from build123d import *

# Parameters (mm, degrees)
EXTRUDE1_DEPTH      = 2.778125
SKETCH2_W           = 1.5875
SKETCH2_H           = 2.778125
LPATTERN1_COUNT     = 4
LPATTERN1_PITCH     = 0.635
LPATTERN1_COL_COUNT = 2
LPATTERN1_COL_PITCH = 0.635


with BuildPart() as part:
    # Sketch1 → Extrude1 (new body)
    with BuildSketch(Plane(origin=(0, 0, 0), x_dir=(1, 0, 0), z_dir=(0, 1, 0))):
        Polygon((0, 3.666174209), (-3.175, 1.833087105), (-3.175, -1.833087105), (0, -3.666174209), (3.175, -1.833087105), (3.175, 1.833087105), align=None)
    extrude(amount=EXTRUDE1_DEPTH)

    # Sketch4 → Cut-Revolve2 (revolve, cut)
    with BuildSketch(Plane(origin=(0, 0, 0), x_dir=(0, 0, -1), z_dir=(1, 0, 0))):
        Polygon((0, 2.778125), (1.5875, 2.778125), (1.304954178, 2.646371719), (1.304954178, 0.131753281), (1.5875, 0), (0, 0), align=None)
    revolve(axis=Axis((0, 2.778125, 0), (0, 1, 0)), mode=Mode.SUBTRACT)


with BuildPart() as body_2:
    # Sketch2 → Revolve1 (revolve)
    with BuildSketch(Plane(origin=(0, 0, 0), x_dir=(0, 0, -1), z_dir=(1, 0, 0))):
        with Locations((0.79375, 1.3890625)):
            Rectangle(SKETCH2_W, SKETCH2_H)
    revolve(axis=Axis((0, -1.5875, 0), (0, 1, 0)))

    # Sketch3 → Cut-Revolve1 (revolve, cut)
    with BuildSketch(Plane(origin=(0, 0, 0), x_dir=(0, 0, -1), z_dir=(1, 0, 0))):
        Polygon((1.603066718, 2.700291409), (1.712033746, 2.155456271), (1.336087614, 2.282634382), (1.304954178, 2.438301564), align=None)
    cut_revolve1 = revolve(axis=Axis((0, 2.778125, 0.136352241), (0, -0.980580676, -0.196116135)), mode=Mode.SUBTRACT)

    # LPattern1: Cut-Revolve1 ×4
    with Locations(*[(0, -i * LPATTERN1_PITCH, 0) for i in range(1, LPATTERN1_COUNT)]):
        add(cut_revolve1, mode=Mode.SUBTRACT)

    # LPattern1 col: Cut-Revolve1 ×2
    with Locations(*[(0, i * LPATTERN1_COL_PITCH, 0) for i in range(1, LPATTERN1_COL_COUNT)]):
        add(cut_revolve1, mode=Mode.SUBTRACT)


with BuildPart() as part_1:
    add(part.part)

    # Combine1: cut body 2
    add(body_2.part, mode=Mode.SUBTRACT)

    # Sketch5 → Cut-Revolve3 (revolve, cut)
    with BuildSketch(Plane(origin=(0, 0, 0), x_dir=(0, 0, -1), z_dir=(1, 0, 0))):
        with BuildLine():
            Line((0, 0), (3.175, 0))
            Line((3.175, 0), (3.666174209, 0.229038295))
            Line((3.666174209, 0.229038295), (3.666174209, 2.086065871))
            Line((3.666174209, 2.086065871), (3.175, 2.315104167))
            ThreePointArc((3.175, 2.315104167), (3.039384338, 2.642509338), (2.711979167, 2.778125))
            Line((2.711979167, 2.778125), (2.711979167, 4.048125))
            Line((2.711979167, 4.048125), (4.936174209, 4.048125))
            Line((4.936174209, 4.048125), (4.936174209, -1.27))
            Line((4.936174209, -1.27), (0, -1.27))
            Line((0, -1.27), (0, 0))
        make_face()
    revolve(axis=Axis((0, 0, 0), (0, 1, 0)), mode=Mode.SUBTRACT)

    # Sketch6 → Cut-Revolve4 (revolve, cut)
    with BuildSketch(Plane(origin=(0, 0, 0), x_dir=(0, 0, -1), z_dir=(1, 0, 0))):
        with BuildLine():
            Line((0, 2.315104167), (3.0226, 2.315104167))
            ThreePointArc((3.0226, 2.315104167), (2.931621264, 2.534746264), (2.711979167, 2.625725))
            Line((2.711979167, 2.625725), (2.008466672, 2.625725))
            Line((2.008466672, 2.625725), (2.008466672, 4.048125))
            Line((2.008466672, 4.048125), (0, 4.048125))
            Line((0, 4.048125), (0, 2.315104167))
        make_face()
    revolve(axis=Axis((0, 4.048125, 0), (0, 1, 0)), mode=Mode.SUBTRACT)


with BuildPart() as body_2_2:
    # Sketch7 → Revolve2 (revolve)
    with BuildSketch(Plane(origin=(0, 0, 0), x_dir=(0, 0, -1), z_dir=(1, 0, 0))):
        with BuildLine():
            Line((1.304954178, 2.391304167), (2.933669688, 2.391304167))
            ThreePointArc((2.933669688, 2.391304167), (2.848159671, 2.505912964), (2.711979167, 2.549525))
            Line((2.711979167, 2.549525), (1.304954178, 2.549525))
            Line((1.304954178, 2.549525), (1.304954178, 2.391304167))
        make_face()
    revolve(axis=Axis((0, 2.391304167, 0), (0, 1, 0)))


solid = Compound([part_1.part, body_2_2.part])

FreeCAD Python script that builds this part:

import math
import FreeCAD as App
import Part
import Sketcher
from FreeCAD import Vector
Q = App.Units.Quantity


def add_polygon(sketch, points):
    """Adds a closed chain of lines whose ends are joined by coincident constraints."""
    first, n = sketch.GeometryCount, len(points)
    for a, b in zip(points, points[1:] + points[:1]):
        sketch.addGeometry(Part.LineSegment(App.Vector(*a, 0), App.Vector(*b, 0)), False)
    for i in range(n):
        sketch.addConstraint(Sketcher.Constraint("Coincident", first + i, 2, first + (i + 1) % n, 1))

doc = App.newDocument("Part")
body = doc.addObject("PartDesign::Body", "Body")

sketch1 = doc.addObject("Sketcher::SketchObject", "Sketch")
body.addObject(sketch1)
sketch1.AttachmentSupport = (doc.XZ_Plane, [""])
sketch1.MapMode = "FlatFace"
add_polygon(sketch1, [(0, -3.7), (-3.2, -1.8), (-3.2, 1.8), (0, 3.7), (3.2, 1.8), (3.2, -1.8)])
sketch1.addConstraint([
    Sketcher.Constraint("Vertical", 1),
    Sketcher.Constraint("Vertical", 4),
    Sketcher.Constraint("Symmetric", 0, 2, 3, 2, -1, 1),
    Sketcher.Constraint("Symmetric", 2, 2, 5, 2, -1, 1),
    Sketcher.Constraint("PointOnObject", 2, 2, -2),
    Sketcher.Constraint("Parallel", 2, 5),
    Sketcher.Constraint("Horizontal", 1, 2, 3, 2),
    Sketcher.Constraint("Angle", 0, Q("150 deg")),
    Sketcher.Constraint("DistanceX", 1, 2, 3, 2, Q("0.25 in")),
    Sketcher.Constraint("DistanceY", 1, 1, 1, 2, 3.666174),
])
pad1 = doc.addObject("PartDesign::Pad", "Pad")
body.addObject(pad1)
pad1.Profile = sketch1
pad1.Length = Q("0.109375 in")
pad1.Reversed = True

sketch2 = doc.addObject("Sketcher::SketchObject", "Sketch001")
body.addObject(sketch2)
sketch2.AttachmentSupport = (doc.YZ_Plane, [""])
sketch2.MapMode = "FlatFace"
add_polygon(sketch2, [(2.78, -1.59), (2.78, 0), (0, 0), (0, -1.59), (0.13, -1.3), (2.65, -1.3)])
sketch2.addConstraint([
    Sketcher.Constraint("Vertical", 0),
    Sketcher.Constraint("Horizontal", 1),
    Sketcher.Constraint("Vertical", 2),
    Sketcher.Constraint("Horizontal", 4),
    Sketcher.Constraint("Coincident", 1, 2, -1, 1),
    Sketcher.Constraint("Horizontal", 2, 2, 5, 2),
    Sketcher.Constraint("Equal", 3, 5),
    Sketcher.Constraint("Angle", 3, Q("65 deg")),
    Sketcher.Constraint("DistanceX", 1, 2, 1, 1, Q("0.109375 in")),
    Sketcher.Constraint("DistanceY", 0, 1, 0, 2, Q("0.0625 in")),
    Sketcher.Constraint("DistanceX", 4, 1, 4, 2, 2.514618),
])
groove = doc.addObject("PartDesign::Groove", "Groove")
body.addObject(groove)
groove.Profile = sketch2
groove.ReferenceAxis = (sketch2, ["H_Axis"])
groove.Angle = 360
body2 = doc.addObject("PartDesign::Body", "Body001")

sketch3 = doc.addObject("Sketcher::SketchObject", "Sketch002")
body2.addObject(sketch3)
sketch3.AttachmentSupport = (doc.getObject("YZ_Plane001"), [""])
sketch3.MapMode = "FlatFace"
add_polygon(sketch3, [(2.8, 0), (0, 0), (0, -1.6), (2.8, -1.6)])
sketch3.addConstraint([
    Sketcher.Constraint("Horizontal", 0),
    Sketcher.Constraint("Vertical", 1),
    Sketcher.Constraint("Horizontal", 2),
    Sketcher.Constraint("Vertical", 3),
    Sketcher.Constraint("Coincident", 0, 2, -1, 1),
    Sketcher.Constraint("DistanceX", 0, 2, 0, 1, Q("0.109375 in")),
    Sketcher.Constraint("DistanceY", 1, 2, 1, 1, Q("0.0625 in")),
])
revolution = doc.addObject("PartDesign::Revolution", "Revolution")
body2.addObject(revolution)
revolution.Profile = sketch3
revolution.ReferenceAxis = (sketch3, ["H_Axis"])
revolution.Angle = 360

sketch4 = doc.addObject("Sketcher::SketchObject", "Sketch003")
body2.addObject(sketch4)
sketch4.AttachmentSupport = (doc.getObject("YZ_Plane001"), [""])
sketch4.MapMode = "FlatFace"
add_polygon(sketch4, [(2.16, -1.71), (2.7, -1.6), (2.44, -1.3), (2.28, -1.34)])
sketch4.addGeometry(Part.LineSegment(Vector(2.37, 0.05, 0), Vector(1.82, -0.05, 0)), True)
sketch4.addConstraint([
    Sketcher.Constraint("Parallel", 0, 2),
    Sketcher.Constraint("Parallel", 2, 4),
    Sketcher.Constraint("Equal", 1, 3),
    Sketcher.Constraint("Equal", 0, 4),
    Sketcher.Constraint("Distance", 1, Q("0.015625 in")),
    Sketcher.Constraint("DistanceX", -1, 1, 1, 2, 2.438302),
    Sketcher.Constraint("Distance", 2, 0.15875),
    Sketcher.Constraint("DistanceX", -1, 1, 0, 2, 2.700291),
    Sketcher.Constraint("DistanceX", -1, 1, 4, 1, 2.368781),
    Sketcher.Constraint("DistanceY", 0, 2, 2, 2, 0.266979),
    Sketcher.Constraint("DistanceY", 2, 2, 4, 1, 1.390571),
    Sketcher.Constraint("DistanceY", 0, 2, -1, 1, 1.603067),
])
groove2 = doc.addObject("PartDesign::Groove", "Groove001")
body2.addObject(groove2)
groove2.Profile = sketch4
groove2.ReferenceAxis = (sketch4, ["Axis0"])
groove2.Angle = 360
doc.recompute()

linearpattern = doc.addObject("PartDesign::LinearPattern", "LinearPattern")
body2.addObject(linearpattern)
linearpattern.Originals = [groove2]
linearpattern.Direction = (doc.getObject("Y_Axis001"), [""])
linearpattern.Mode = "offset"
linearpattern.Offset = Q("0.025 in")
linearpattern.Occurrences = 4
linearpattern.Reversed = True
body2.Tip = linearpattern
doc.recompute()

linearpattern2 = doc.addObject("PartDesign::LinearPattern", "LinearPattern001")
body2.addObject(linearpattern2)
linearpattern2.Originals = [groove2]
linearpattern2.Direction = (doc.getObject("Y_Axis001"), [""])
linearpattern2.Mode = "offset"
linearpattern2.Offset = Q("0.025 in")
linearpattern2.Occurrences = 2
body2.Tip = linearpattern2
doc.recompute()

boolean = doc.addObject("PartDesign::Boolean", "Boolean")
body.addObject(boolean)
boolean.Type = "Cut"
boolean.addObjects([body2])

sketch5 = doc.addObject("Sketcher::SketchObject", "Sketch004")
body.addObject(sketch5)
sketch5.AttachmentSupport = (doc.YZ_Plane, [""])
sketch5.MapMode = "FlatFace"
sketch5.addGeometry([
    Part.LineSegment(Vector(0, -3.17, 0), Vector(0, 0, 0)),
    Part.LineSegment(Vector(0, 0, 0), Vector(-1.27, 0, 0)),
    Part.LineSegment(Vector(-1.27, 0, 0), Vector(-1.27, -4.94, 0)),
    Part.LineSegment(Vector(-1.27, -4.94, 0), Vector(4.05, -4.94, 0)),
    Part.LineSegment(Vector(4.05, -4.94, 0), Vector(4.05, -2.71, 0)),
    Part.LineSegment(Vector(4.05, -2.71, 0), Vector(2.78, -2.71, 0)),
    Part.ArcOfCircle(Part.Circle(Vector(2.32, -2.71, 0), Vector(0, 0, 1), 0.46), math.radians(-90), math.radians(0)),
    Part.LineSegment(Vector(2.32, -3.17, 0), Vector(2.09, -3.67, 0)),
    Part.LineSegment(Vector(2.09, -3.67, 0), Vector(0.23, -3.67, 0)),
    Part.LineSegment(Vector(0.23, -3.67, 0), Vector(0, -3.17, 0)),
], False)
sketch5.addConstraint([
    Sketcher.Constraint("Coincident", 0, 2, 1, 1),
    Sketcher.Constraint("Coincident", 1, 2, 2, 1),
    Sketcher.Constraint("Coincident", 2, 2, 3, 1),
    Sketcher.Constraint("Coincident", 3, 2, 4, 1),
    Sketcher.Constraint("Coincident", 4, 2, 5, 1),
    Sketcher.Constraint("Coincident", 5, 2, 6, 2),
    Sketcher.Constraint("Coincident", 6, 1, 7, 1),
    Sketcher.Constraint("Coincident", 7, 2, 8, 1),
    Sketcher.Constraint("Coincident", 8, 2, 9, 1),
    Sketcher.Constraint("Coincident", 9, 2, 0, 1),
    Sketcher.Constraint("Vertical", 0),
    Sketcher.Constraint("Horizontal", 1),
    Sketcher.Constraint("Vertical", 2),
    Sketcher.Constraint("Horizontal", 3),
    Sketcher.Constraint("Vertical", 4),
    Sketcher.Constraint("Horizontal", 5),
    Sketcher.Constraint("Horizontal", 8),
    Sketcher.Constraint("Coincident", 0, 2, -1, 1),
    Sketcher.Constraint("Horizontal", 6, 3, 4, 2),
    Sketcher.Constraint("Horizontal", 6, 1, 9, 2),
    Sketcher.Constraint("Equal", 1, 5),
    Sketcher.Constraint("Equal", 7, 9),
    Sketcher.Constraint("Angle", 7, Q("-115 deg")),
    Sketcher.Constraint("DistanceX", 1, 2, 1, 1, Q("0.05 in")),
    Sketcher.Constraint("DistanceY", 0, 1, 0, 2, Q("0.125 in")),
    Sketcher.Constraint("DistanceY", 3, 2, 7, 2, Q("0.05 in")),
    Sketcher.Constraint("DistanceX", -1, 1, 5, 2, Q("0.109375 in")),
    Sketcher.Constraint("Radius", 6, 0.463021),
    Sketcher.Constraint("Distance", 7, 0.541951),
    Sketcher.Constraint("DistanceX", 8, 2, 8, 1, 1.857028),
])
groove3 = doc.addObject("PartDesign::Groove", "Groove002")
body.addObject(groove3)
groove3.Profile = sketch5
groove3.ReferenceAxis = (sketch5, ["H_Axis"])
groove3.Angle = 360

sketch6 = doc.addObject("Sketcher::SketchObject", "Sketch005")
body.addObject(sketch6)
sketch6.AttachmentSupport = (doc.YZ_Plane, [""])
sketch6.MapMode = "FlatFace"
sketch6.addGeometry([
    Part.LineSegment(Vector(2.32, 0, 0), Vector(2.32, -3.02, 0)),
    Part.ArcOfCircle(Part.Circle(Vector(2.32, -2.71, 0), Vector(0, 0, 1), 0.31), math.radians(-90), math.radians(0)),
    Part.LineSegment(Vector(2.63, -2.71, 0), Vector(2.63, -2.01, 0)),
    Part.LineSegment(Vector(2.63, -2.01, 0), Vector(4.05, -2.01, 0)),
    Part.LineSegment(Vector(4.05, -2.01, 0), Vector(4.05, 0, 0)),
    Part.LineSegment(Vector(4.05, 0, 0), Vector(2.32, 0, 0)),
], False)
sketch6.addConstraint([
    Sketcher.Constraint("Coincident", 0, 2, 1, 1),
    Sketcher.Constraint("Tangent", 1, 2, 2, 1),
    Sketcher.Constraint("Coincident", 2, 2, 3, 1),
    Sketcher.Constraint("Coincident", 3, 2, 4, 1),
    Sketcher.Constraint("Coincident", 4, 2, 5, 1),
    Sketcher.Constraint("Coincident", 5, 2, 0, 1),
    Sketcher.Constraint("Vertical", 0),
    Sketcher.Constraint("Vertical", 2),
    Sketcher.Constraint("Horizontal", 3),
    Sketcher.Constraint("Vertical", 4),
    Sketcher.Constraint("Horizontal", 5),
    Sketcher.Constraint("PointOnObject", 4, 2, -1),
    Sketcher.Constraint("Vertical", 1, 3, 0, 2),
    Sketcher.Constraint("DistanceX", 3, 1, 3, 2, Q("0.056 in")),
    Sketcher.Constraint("DistanceY", 0, 2, 0, 1, Q("0.119 in")),
    Sketcher.Constraint("Radius", 1, 0.310621),
    Sketcher.Constraint("DistanceY", 2, 1, 2, 2, 0.703512),
    Sketcher.Constraint("DistanceX", -1, 1, 1, 3, 2.315104),
])
groove4 = doc.addObject("PartDesign::Groove", "Groove003")
body.addObject(groove4)
groove4.Profile = sketch6
groove4.ReferenceAxis = (sketch6, ["H_Axis"])
groove4.Angle = 360
body3 = doc.addObject("PartDesign::Body", "Body002")

sketch7 = doc.addObject("Sketcher::SketchObject", "Sketch006")
body3.addObject(sketch7)
sketch7.AttachmentSupport = (doc.getObject("YZ_Plane002"), [""])
sketch7.MapMode = "FlatFace"
sketch7.addGeometry([
    Part.LineSegment(Vector(2.39, -1.3, 0), Vector(2.39, -2.93, 0)),
    Part.ArcOfCircle(Part.Circle(Vector(2.32, -2.71, 0), Vector(0, 0, 1), 0.23), math.radians(-71), math.radians(0)),
    Part.LineSegment(Vector(2.55, -2.71, 0), Vector(2.55, -1.3, 0)),
    Part.LineSegment(Vector(2.55, -1.3, 0), Vector(2.39, -1.3, 0)),
], False)
sketch7.addConstraint([
    Sketcher.Constraint("Coincident", 0, 2, 1, 1),
    Sketcher.Constraint("Tangent", 1, 2, 2, 1),
    Sketcher.Constraint("Coincident", 2, 2, 3, 1),
    Sketcher.Constraint("Coincident", 3, 2, 0, 1),
    Sketcher.Constraint("Vertical", 0),
    Sketcher.Constraint("Vertical", 2),
    Sketcher.Constraint("Horizontal", 3),
    Sketcher.Constraint("Radius", 1, 0.234421),
    Sketcher.Constraint("DistanceX", 1, 3, 0, 2, Q("0.003 in")),
    Sketcher.Constraint("DistanceY", 0, 2, 0, 1, 1.628716),
    Sketcher.Constraint("DistanceY", 1, 3, -1, 1, 2.711979),
    Sketcher.Constraint("DistanceX", -1, 1, 1, 3, 2.315104),
])
revolution2 = doc.addObject("PartDesign::Revolution", "Revolution001")
body3.addObject(revolution2)
revolution2.Profile = sketch7
revolution2.ReferenceAxis = (sketch7, ["H_Axis"])
revolution2.Angle = 360

doc.recompute()
